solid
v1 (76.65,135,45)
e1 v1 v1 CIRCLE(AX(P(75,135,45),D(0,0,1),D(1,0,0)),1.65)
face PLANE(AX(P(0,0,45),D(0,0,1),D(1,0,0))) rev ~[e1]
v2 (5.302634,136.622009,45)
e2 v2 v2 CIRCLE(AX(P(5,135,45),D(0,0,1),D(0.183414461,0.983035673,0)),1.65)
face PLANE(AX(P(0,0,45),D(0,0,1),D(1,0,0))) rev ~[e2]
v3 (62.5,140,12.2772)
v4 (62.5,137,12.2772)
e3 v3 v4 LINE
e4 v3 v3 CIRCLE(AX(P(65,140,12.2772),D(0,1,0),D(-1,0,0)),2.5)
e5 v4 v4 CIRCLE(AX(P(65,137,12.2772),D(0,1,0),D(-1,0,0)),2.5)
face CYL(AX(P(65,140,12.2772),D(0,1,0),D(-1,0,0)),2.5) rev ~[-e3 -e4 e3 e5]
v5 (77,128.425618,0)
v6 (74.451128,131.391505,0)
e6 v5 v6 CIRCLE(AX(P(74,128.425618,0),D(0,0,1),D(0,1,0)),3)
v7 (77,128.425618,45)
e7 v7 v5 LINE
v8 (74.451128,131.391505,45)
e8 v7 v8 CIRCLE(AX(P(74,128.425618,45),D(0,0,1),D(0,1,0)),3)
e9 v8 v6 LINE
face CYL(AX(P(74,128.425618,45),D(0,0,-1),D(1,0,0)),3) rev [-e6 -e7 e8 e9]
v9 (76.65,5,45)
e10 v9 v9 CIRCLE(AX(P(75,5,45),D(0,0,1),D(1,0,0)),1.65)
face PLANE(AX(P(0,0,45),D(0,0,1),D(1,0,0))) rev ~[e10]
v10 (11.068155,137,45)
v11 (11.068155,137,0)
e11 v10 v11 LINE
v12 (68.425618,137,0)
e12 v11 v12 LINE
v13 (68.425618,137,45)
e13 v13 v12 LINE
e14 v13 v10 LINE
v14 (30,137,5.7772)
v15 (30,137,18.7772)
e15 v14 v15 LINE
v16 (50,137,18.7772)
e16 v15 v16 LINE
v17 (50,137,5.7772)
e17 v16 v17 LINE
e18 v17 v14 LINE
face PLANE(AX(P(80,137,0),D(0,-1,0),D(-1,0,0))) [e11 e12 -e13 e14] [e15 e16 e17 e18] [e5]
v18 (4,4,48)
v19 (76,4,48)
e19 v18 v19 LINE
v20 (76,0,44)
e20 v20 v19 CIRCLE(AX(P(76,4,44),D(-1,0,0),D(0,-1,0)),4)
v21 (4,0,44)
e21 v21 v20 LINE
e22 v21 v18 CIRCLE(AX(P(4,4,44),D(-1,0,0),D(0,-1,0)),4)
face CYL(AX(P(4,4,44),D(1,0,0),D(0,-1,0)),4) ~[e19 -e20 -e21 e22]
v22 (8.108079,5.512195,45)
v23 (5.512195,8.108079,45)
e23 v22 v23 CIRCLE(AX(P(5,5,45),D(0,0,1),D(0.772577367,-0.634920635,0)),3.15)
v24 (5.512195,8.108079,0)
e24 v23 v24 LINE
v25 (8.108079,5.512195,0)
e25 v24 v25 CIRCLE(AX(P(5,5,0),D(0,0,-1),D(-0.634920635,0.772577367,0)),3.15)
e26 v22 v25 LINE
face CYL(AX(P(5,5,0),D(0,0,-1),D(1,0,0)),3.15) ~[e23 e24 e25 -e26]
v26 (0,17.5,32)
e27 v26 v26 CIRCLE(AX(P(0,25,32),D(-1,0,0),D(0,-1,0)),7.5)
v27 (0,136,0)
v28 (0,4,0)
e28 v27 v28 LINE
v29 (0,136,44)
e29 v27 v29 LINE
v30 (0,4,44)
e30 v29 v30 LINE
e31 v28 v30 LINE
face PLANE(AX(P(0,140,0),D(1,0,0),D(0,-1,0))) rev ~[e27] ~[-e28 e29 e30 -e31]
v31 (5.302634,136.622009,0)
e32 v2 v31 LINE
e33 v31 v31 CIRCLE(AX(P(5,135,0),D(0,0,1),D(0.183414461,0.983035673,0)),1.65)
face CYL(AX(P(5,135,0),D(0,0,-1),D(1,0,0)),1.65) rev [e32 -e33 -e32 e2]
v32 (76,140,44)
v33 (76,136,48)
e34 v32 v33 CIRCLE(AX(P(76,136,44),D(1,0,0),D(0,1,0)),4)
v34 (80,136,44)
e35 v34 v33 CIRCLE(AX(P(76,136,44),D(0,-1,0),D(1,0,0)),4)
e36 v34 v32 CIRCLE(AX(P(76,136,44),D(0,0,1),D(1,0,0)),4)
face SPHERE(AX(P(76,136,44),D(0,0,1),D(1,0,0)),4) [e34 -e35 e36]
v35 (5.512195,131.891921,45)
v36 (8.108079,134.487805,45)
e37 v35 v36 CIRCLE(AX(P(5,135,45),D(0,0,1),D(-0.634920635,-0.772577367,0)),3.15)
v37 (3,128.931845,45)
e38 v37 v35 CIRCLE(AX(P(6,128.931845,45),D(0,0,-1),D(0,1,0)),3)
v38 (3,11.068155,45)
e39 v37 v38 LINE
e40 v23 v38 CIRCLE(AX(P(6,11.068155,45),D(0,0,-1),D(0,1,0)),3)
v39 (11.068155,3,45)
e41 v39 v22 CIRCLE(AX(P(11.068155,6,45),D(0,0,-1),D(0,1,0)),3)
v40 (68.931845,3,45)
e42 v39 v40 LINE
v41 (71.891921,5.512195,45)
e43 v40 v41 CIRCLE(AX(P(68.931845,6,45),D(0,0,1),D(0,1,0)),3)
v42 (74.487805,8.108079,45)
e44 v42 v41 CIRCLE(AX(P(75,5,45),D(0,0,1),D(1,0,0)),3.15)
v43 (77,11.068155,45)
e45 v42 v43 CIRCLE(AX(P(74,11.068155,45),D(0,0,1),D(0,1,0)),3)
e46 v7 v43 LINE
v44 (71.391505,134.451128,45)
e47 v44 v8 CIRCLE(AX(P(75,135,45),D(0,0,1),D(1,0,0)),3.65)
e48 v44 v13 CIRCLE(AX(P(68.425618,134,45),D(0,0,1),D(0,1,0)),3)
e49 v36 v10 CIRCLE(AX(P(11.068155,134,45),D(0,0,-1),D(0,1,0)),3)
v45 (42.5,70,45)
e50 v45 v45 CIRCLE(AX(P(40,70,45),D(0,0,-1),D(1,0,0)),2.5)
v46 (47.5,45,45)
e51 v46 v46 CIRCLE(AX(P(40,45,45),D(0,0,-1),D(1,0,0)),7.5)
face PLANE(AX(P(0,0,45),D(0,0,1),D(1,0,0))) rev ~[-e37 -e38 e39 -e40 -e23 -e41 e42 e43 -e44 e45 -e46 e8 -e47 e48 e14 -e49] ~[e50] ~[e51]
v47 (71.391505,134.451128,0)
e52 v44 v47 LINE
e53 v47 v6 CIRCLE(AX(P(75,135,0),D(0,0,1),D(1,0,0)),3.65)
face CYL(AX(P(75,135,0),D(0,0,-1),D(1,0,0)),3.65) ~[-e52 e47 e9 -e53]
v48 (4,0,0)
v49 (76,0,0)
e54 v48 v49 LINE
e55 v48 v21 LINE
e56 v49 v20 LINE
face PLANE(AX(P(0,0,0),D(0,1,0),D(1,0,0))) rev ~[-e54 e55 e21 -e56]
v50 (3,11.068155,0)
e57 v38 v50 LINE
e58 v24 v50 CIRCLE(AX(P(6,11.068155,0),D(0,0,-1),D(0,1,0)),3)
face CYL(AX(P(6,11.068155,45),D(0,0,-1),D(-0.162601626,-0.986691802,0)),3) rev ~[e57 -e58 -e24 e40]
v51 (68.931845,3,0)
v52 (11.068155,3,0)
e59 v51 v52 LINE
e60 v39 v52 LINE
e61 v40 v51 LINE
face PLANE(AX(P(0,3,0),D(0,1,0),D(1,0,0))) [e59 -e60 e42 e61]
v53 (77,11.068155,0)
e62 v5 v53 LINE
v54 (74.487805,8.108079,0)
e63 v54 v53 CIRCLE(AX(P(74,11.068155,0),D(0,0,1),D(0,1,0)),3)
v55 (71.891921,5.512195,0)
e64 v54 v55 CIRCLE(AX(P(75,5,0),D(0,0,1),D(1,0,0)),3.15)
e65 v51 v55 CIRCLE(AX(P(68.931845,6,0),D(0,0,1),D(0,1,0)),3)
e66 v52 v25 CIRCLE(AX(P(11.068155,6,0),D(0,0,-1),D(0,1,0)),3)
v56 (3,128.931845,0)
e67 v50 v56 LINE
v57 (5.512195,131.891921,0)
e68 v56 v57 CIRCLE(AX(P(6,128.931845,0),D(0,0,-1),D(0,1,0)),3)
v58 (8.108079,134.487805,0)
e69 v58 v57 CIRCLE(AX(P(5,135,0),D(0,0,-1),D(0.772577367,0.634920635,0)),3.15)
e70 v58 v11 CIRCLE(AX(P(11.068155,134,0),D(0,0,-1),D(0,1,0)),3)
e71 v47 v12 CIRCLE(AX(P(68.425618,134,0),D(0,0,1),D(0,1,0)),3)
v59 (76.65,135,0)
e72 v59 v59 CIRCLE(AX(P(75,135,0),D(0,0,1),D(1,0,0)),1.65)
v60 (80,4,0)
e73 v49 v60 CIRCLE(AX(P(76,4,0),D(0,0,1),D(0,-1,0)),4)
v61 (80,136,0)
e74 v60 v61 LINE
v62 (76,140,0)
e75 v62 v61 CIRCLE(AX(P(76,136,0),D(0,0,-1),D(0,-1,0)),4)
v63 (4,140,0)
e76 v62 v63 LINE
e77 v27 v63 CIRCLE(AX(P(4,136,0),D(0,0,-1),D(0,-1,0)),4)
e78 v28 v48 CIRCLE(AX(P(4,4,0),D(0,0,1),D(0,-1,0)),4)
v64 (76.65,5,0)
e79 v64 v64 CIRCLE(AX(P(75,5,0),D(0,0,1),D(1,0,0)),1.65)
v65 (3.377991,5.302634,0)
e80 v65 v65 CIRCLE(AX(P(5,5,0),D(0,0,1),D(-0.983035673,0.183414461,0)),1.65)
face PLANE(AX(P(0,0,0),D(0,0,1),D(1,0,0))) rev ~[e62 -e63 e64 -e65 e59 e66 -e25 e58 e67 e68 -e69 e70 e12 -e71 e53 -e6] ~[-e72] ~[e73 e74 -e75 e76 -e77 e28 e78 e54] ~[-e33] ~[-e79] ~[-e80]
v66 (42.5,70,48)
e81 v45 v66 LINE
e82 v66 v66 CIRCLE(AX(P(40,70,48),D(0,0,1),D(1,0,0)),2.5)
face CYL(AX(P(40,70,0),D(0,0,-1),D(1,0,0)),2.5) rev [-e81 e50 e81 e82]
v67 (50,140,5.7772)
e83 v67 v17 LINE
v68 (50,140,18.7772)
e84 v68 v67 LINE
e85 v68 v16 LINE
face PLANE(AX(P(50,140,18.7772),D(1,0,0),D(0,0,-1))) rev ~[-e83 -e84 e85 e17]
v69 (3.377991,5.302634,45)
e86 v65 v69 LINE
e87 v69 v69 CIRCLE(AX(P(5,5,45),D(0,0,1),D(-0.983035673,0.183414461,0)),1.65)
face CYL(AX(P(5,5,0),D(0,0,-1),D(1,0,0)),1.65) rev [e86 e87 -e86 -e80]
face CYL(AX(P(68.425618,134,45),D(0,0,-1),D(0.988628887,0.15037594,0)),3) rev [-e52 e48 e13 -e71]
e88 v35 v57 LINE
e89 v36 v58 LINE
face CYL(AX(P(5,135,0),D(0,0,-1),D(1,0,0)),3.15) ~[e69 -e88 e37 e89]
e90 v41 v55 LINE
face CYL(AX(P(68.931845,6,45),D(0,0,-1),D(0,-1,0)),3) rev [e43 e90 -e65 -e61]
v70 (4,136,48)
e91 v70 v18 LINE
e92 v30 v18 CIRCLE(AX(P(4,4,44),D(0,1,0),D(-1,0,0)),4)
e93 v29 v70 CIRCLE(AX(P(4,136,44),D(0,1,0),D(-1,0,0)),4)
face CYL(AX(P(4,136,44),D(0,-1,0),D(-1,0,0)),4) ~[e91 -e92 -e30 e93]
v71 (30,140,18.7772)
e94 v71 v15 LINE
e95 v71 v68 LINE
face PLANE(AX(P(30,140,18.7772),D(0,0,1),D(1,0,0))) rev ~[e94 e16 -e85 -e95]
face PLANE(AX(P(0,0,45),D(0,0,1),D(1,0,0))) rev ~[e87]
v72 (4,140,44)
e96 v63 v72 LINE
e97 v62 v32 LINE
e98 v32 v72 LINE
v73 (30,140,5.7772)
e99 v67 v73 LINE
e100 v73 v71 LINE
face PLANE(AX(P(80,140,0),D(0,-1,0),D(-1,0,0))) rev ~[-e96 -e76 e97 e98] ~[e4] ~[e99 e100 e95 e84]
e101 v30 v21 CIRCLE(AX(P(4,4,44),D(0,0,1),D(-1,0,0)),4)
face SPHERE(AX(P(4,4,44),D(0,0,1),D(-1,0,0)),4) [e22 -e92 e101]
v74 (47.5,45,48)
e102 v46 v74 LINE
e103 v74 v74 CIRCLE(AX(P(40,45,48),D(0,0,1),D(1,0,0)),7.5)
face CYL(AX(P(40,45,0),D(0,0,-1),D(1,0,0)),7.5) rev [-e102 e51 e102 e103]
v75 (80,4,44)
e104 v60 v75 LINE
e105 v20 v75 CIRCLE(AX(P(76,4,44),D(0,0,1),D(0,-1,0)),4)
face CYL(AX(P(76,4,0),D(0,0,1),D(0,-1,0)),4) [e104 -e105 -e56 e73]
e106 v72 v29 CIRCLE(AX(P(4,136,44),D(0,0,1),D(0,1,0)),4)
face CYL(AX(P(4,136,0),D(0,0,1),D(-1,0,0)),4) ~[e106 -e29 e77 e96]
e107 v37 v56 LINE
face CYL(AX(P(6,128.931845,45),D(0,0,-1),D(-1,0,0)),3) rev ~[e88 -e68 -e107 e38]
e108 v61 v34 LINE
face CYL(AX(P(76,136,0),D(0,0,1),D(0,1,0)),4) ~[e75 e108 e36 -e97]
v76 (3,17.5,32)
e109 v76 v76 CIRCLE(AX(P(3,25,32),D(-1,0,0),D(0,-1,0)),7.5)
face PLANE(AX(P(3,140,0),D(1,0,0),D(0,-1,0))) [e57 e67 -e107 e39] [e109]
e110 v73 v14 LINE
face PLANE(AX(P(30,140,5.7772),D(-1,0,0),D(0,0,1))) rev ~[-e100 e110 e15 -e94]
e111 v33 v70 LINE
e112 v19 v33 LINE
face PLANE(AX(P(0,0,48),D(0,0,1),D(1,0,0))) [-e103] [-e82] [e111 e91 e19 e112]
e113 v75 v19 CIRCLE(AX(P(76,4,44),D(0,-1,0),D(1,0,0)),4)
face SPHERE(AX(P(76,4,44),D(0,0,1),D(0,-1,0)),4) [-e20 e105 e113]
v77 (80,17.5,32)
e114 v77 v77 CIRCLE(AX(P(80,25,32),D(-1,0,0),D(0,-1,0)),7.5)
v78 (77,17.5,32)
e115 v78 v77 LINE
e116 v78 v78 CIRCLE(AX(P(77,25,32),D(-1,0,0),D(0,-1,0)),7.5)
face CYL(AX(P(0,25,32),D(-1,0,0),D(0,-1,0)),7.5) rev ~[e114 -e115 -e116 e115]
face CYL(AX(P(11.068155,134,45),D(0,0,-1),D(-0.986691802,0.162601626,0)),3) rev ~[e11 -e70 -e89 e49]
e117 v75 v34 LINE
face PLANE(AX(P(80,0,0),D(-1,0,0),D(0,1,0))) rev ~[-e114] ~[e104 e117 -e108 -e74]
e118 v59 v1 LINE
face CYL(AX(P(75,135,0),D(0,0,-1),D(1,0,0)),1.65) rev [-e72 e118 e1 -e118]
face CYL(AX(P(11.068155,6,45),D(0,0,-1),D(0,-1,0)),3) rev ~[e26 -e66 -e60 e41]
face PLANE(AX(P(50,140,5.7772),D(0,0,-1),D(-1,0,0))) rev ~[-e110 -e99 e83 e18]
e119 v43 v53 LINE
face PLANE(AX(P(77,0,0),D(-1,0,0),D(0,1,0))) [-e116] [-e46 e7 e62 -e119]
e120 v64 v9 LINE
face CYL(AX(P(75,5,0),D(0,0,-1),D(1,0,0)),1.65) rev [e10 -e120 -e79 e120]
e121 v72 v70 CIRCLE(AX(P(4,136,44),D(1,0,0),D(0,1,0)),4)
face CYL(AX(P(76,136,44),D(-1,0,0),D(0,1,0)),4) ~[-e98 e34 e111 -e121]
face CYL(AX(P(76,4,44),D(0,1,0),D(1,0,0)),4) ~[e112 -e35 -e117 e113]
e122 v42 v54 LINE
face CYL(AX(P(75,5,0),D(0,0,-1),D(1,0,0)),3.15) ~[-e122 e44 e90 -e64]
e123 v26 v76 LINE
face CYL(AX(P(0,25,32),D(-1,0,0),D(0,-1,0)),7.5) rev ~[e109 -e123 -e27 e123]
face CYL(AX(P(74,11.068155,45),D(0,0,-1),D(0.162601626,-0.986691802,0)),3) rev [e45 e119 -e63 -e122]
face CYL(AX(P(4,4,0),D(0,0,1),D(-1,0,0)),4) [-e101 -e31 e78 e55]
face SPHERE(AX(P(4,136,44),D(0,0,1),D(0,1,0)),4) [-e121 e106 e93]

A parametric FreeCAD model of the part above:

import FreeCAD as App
import Part
import Sketcher

V = App.Vector
Q = App.Units.Quantity


def edges_at(feature, points):
    """Names of the edges that pass closest to the given points."""
    edges = feature.Shape.Edges
    near = lambda p: min(range(len(edges)), key=lambda i: edges[i].distToShape(Part.Vertex(*p))[0])
    return sorted({f"Edge{near(p) + 1}" for p in points})


def faces_at(feature, points):
    """Names of the faces that lie closest to the given points."""
    faces = feature.Shape.Faces
    near = lambda p: min(range(len(faces)), key=lambda i: faces[i].distToShape(Part.Vertex(*p))[0])
    return sorted({f"Face{near(p) + 1}" for p in points})

doc = App.newDocument("Part")
params = doc.addObject("Spreadsheet::Sheet", "Params")
for row, (alias, value) in enumerate([
    ("sketch1_width", "80 mm"),
    ("sketch1_height", "140 mm"),
    ("pad1_length", "48 mm"),
    ("thickness_wall", "3 mm"),
    ("sketch2_diameter", "15 mm"),
    ("sketch2_diameter2", "5 mm"),
    ("pocket1_length", "48 mm"),
    ("sketch3_diameter", "15 mm"),
    ("pocket2_length", "80 mm"),
    ("fillet_radius", "4 mm"),
    ("fillet2_radius", "4 mm"),
    ("sketch4_diameter", "3.3 mm"),
    ("sketch4_diameter2", "6.3 mm"),
    ("sketch4_diameter3", "7.3 mm"),
    ("pad2_length", "45 mm"),
    ("sketch5_diameter", "3.3 mm"),
    ("pocket3_length", "45 mm"),
    ("fillet3_radius", "3 mm"),
    ("sketch6_diameter", "5 mm"),
    ("sketch6_width", "20 mm"),
    ("sketch6_height", "13 mm"),
    ("pocket4_length", "3 mm"),
], start=1):
    params.set(f"A{row}", alias)
    params.set(f"B{row}", "=" + value)
    params.setAlias(f"B{row}", alias)

body = doc.addObject("PartDesign::Body", "Body")

# Sketch on XY plane
sketch1 = body.newObject("Sketcher::SketchObject", "Sketch")
sketch1.AttachmentSupport = (doc.getObject("XY_Plane"), [""])
sketch1.MapMode = "FlatFace"
sketch1.addGeometry([
    Part.LineSegment(V(0, 140, 0), V(0, 0, 0)),
    Part.LineSegment(V(0, 0, 0), V(80, 0, 0)),
    Part.LineSegment(V(80, 0, 0), V(80, 140, 0)),
    Part.LineSegment(V(80, 140, 0), V(0, 140, 0)),
], False)
sketch1.addConstraint([
    Sketcher.Constraint("Coincident", 0, 2, 1, 1),
    Sketcher.Constraint("Coincident", 1, 2, 2, 1),
    Sketcher.Constraint("Coincident", 2, 2, 3, 1),
    Sketcher.Constraint("Coincident", 3, 2, 0, 1),
    Sketcher.Constraint("Vertical", 0),
    Sketcher.Constraint("Horizontal", 1),
    Sketcher.Constraint("Vertical", 2),
    Sketcher.Constraint("Horizontal", 3),
    Sketcher.Constraint("Coincident", 0, 2, -1, 1),
    Sketcher.Constraint("DistanceX", 1, 1, 1, 2, Q("80 mm")),
    Sketcher.Constraint("DistanceY", 0, 2, 0, 1, Q("140 mm")),
])
sketch1.setExpression("Constraints[9]", "Params.sketch1_width")
sketch1.setExpression("Constraints[10]", "Params.sketch1_height")
pad1 = body.newObject("PartDesign::Pad", "Pad")
pad1.Profile = sketch1
pad1.setExpression("Length", "Params.pad1_length")
doc.recompute()

thickness = body.newObject("PartDesign::Thickness", "Thickness")
thickness.Base = (pad1, faces_at(pad1, [(26.667, 46.667, 0)]))
thickness.setExpression("Value", "Params.thickness_wall")
thickness.Reversed = True
thickness.Join = "Intersection"

# Sketch on XY plane
sketch2 = body.newObject("Sketcher::SketchObject", "Sketch001")
sketch2.AttachmentSupport = (doc.getObject("XY_Plane"), [""])
sketch2.MapMode = "FlatFace"
sketch2.addGeometry([
    Part.Circle(V(40, 45, 0), V(0, 0, 1), 7.5),
    Part.Circle(V(40, 70, 0), V(0, 0, 1), 2.5),
], False)
sketch2.addConstraint([
    Sketcher.Constraint("Vertical", 0, 3, 1, 3),
    Sketcher.Constraint("Diameter", 0, Q("15 mm")),
    Sketcher.Constraint("Diameter", 1, Q("5 mm")),
    Sketcher.Constraint("DistanceY", -1, 1, 0, 3, Q("45 mm")),
    Sketcher.Constraint("DistanceY", 0, 3, 1, 3, Q("25 mm")),
    Sketcher.Constraint("DistanceX", -1, 1, 0, 3, Q("40 mm")),
])
sketch2.setExpression("Constraints[1]", "Params.sketch2_diameter")
sketch2.setExpression("Constraints[2]", "Params.sketch2_diameter2")
pocket1 = body.newObject("PartDesign::Pocket", "Pocket")
pocket1.Profile = sketch2
pocket1.setExpression("Length", "Params.pocket1_length")
pocket1.Reversed = True

# Sketch on YZ plane
sketch3 = body.newObject("Sketcher::SketchObject", "Sketch002")
sketch3.AttachmentSupport = (doc.getObject("YZ_Plane"), [""])
sketch3.MapMode = "FlatFace"
sketch3.addGeometry(Part.Circle(V(25, 32, 0), V(0, 0, 1), 7.5), False)
sketch3.addConstraint([
    Sketcher.Constraint("Diameter", 0, Q("15 mm")),
    Sketcher.Constraint("DistanceX", -1, 1, 0, 3, Q("25 mm")),
    Sketcher.Constraint("DistanceY", -1, 1, 0, 3, Q("32 mm")),
])
sketch3.setExpression("Constraints[0]", "Params.sketch3_diameter")
pocket2 = body.newObject("PartDesign::Pocket", "Pocket001")
pocket2.Profile = sketch3
pocket2.setExpression("Length", "Params.pocket2_length")
pocket2.Reversed = True
doc.recompute()

fillet = body.newObject("PartDesign::Fillet", "Fillet")
fillet.Base = (pocket2, edges_at(pocket2, [
    (0, 0, 24),
    (3, 3, 22.5),
    (80, 0, 24),
    (77, 3, 22.5),
    (0, 140, 24),
    (3, 137, 22.5),
    (77, 137, 22.5),
    (80, 140, 24),
]))
fillet.setExpression("Radius", "Params.fillet_radius")
doc.recompute()

fillet2 = body.newObject("PartDesign::Fillet", "Fillet001")
fillet2.Base = (fillet, edges_at(fillet, [
    (1.172, 1.172, 48),
    (40, 0, 48),
    (78.828, 1.172, 48),
    (80, 70, 48),
    (78.828, 138.828, 48),
    (40, 140, 48),
    (1.172, 138.828, 48),
    (0, 70, 48),
]))
fillet2.setExpression("Radius", "Params.fillet2_radius")

# Sketch on XY plane
sketch4 = body.newObject("Sketcher::SketchObject", "Sketch003")
sketch4.AttachmentSupport = (doc.getObject("XY_Plane"), [""])
sketch4.MapMode = "FlatFace"
sketch4.addGeometry([
    Part.Circle(V(75, 5, 0), V(0, 0, 1), 3.15),  # 0
    Part.Circle(V(75, 5, 0), V(0, 0, 1), 1.65),  # 1
    Part.Circle(V(5, 5, 0), V(0, 0, 1), 3.15),  # 2
    Part.Circle(V(5, 5, 0), V(0, 0, 1), 1.65),  # 3
    Part.Circle(V(5, 135, 0), V(0, 0, 1), 3.15),  # 4
    Part.Circle(V(5, 135, 0), V(0, 0, 1), 1.65),  # 5
    Part.Circle(V(75, 135, 0), V(0, 0, 1), 3.65),  # 6
    Part.Circle(V(75, 135, 0), V(0, 0, 1), 1.65),  # 7
], False)
sketch4.addConstraint([
    Sketcher.Constraint("Coincident", 1, 3, 0, 3),
    Sketcher.Constraint("Coincident", 3, 3, 2, 3),
    Sketcher.Constraint("Coincident", 5, 3, 4, 3),
    Sketcher.Constraint("Coincident", 7, 3, 6, 3),
    Sketcher.Constraint("Equal", 0, 2),
    Sketcher.Constraint("Equal", 1, 3),
    Sketcher.Constraint("Equal", 2, 4),
    Sketcher.Constraint("Equal", 3, 5),
    Sketcher.Constraint("Equal", 5, 7),
    Sketcher.Constraint("Horizontal", 1, 3, 2, 3),
    Sketcher.Constraint("Horizontal", 5, 3, 6, 3),
    Sketcher.Constraint("Vertical", 3, 3, 4, 3),
    Sketcher.Constraint("Vertical", 1, 3, 6, 3),
    Sketcher.Constraint("Diameter", 1, Q("3.3 mm")),
    Sketcher.Constraint("DistanceY", -1, 1, 0, 3, Q("5 mm")),
    Sketcher.Constraint("DistanceX", -1, 1, 2, 3, Q("5 mm")),
    Sketcher.Constraint("Diameter", 0, Q("6.3 mm")),
    Sketcher.Constraint("Diameter", 6, Q("7.3 mm")),
    Sketcher.Constraint("DistanceX", -1, 1, 0, 3, Q("75 mm")),
    Sketcher.Constraint("DistanceY", -1, 1, 4, 3, Q("135 mm")),
])
sketch4.setExpression("Constraints[13]", "Params.sketch4_diameter")
sketch4.setExpression("Constraints[16]", "Params.sketch4_diameter2")
sketch4.setExpression("Constraints[17]", "Params.sketch4_diameter3")
pad2 = body.newObject("PartDesign::Pad", "Pad001")
pad2.Profile = sketch4
pad2.setExpression("Length", "Params.pad2_length")

# Sketch on XY plane
sketch5 = body.newObject("Sketcher::SketchObject", "Sketch004")
sketch5.AttachmentSupport = (doc.getObject("XY_Plane"), [""])
sketch5.MapMode = "FlatFace"
sketch5.addGeometry([
    Part.Circle(V(75, 135, 0), V(0, 0, 1), 1.65),
    Part.Circle(V(5, 135, 0), V(0, 0, 1), 1.65),
    Part.Circle(V(75, 5, 0), V(0, 0, 1), 1.65),
    Part.Circle(V(5, 5, 0), V(0, 0, 1), 1.65),
], False)
sketch5.addConstraint([
    Sketcher.Constraint("Equal", 0, 1),
    Sketcher.Constraint("Equal", 1, 2),
    Sketcher.Constraint("Equal", 2, 3),
    Sketcher.Constraint("Horizontal", 0, 3, 1, 3),
    Sketcher.Constraint("Horizontal", 2, 3, 3, 3),
    Sketcher.Constraint("Vertical", 0, 3, 2, 3),
    Sketcher.Constraint("Vertical", 1, 3, 3, 3),
    Sketcher.Constraint("Diameter", 0, Q("3.3 mm")),
    Sketcher.Constraint("DistanceX", -1, 1, 1, 3, Q("5 mm")),
    Sketcher.Constraint("DistanceY", -1, 1, 2, 3, Q("5 mm")),
    Sketcher.Constraint("DistanceX", -1, 1, 0, 3, Q("75 mm")),
    Sketcher.Constraint("DistanceY", -1, 1, 0, 3, Q("135 mm")),
])
sketch5.setExpression("Constraints[7]", "Params.sketch5_diameter")
pocket3 = body.newObject("PartDesign::Pocket", "Pocket002")
pocket3.Profile = sketch5
pocket3.setExpression("Length", "Params.pocket3_length")
pocket3.Reversed = True
doc.recompute()

fillet3 = body.newObject("PartDesign::Fillet", "Fillet002")
fillet3.Base = (pocket3, edges_at(pocket3, [
    (72.566, 3, 22.5),
    (77, 7.434, 22.5),
    (3, 7.434, 22.5),
    (7.434, 3, 22.5),
    (7.434, 137, 22.5),
    (3, 132.566, 22.5),
    (77, 131.947, 22.5),
    (71.947, 137, 22.5),
]))
fillet3.setExpression("Radius", "Params.fillet3_radius")

# Sketch on XZ plane
sketch6 = body.newObject("Sketcher::SketchObject", "Sketch005")
sketch6.AttachmentSupport = (doc.getObject("XZ_Plane"), [""])
sketch6.MapMode = "FlatFace"
sketch6.AttachmentOffset = App.Placement(V(0, 0, -140), App.Rotation())
sketch6.addGeometry([
    Part.LineSegment(V(30, 5.7772, 0), V(30, 18.7772, 0)),  # 0
    Part.LineSegment(V(30, 18.7772, 0), V(50, 18.7772, 0)),  # 1
    Part.LineSegment(V(50, 18.7772, 0), V(50, 5.7772, 0)),  # 2
    Part.LineSegment(V(50, 5.7772, 0), V(30, 5.7772, 0)),  # 3
    Part.Circle(V(65, 12.2772, 0), V(0, 0, 1), 2.5),  # 4
], False)
sketch6.addConstraint([
    Sketcher.Constraint("Coincident", 0, 2, 1, 1),
    Sketcher.Constraint("Coincident", 1, 2, 2, 1),
    Sketcher.Constraint("Coincident", 2, 2, 3, 1),
    Sketcher.Constraint("Coincident", 3, 2, 0, 1),
    Sketcher.Constraint("Vertical", 0),
    Sketcher.Constraint("Horizontal", 1),
    Sketcher.Constraint("Vertical", 2),
    Sketcher.Constraint("Horizontal", 3),
    Sketcher.Constraint("Diameter", 4, Q("5 mm")),
    Sketcher.Constraint("DistanceX", 1, 1, 1, 2, Q("20 mm")),
    Sketcher.Constraint("DistanceY", 0, 1, 0, 2, Q("13 mm")),
    Sketcher.Constraint("DistanceX", 1, 2, 4, 3, Q("15 mm")),
    Sketcher.Constraint("DistanceX", -1, 1, 4, 3, Q("65 mm")),
    Sketcher.Constraint("DistanceY", 4, 3, 0, 2, Q("6.5 mm")),
    Sketcher.Constraint("DistanceY", -1, 1, 4, 3, Q("12.2772 mm")),
])
sketch6.setExpression("Constraints[8]", "Params.sketch6_diameter")
sketch6.setExpression("Constraints[9]", "Params.sketch6_width")
sketch6.setExpression("Constraints[10]", "Params.sketch6_height")
pocket4 = body.newObject("PartDesign::Pocket", "Pocket003")
pocket4.Profile = sketch6
pocket4.setExpression("Length", "Params.pocket4_length")
pocket4.Reversed = True

doc.recompute()
